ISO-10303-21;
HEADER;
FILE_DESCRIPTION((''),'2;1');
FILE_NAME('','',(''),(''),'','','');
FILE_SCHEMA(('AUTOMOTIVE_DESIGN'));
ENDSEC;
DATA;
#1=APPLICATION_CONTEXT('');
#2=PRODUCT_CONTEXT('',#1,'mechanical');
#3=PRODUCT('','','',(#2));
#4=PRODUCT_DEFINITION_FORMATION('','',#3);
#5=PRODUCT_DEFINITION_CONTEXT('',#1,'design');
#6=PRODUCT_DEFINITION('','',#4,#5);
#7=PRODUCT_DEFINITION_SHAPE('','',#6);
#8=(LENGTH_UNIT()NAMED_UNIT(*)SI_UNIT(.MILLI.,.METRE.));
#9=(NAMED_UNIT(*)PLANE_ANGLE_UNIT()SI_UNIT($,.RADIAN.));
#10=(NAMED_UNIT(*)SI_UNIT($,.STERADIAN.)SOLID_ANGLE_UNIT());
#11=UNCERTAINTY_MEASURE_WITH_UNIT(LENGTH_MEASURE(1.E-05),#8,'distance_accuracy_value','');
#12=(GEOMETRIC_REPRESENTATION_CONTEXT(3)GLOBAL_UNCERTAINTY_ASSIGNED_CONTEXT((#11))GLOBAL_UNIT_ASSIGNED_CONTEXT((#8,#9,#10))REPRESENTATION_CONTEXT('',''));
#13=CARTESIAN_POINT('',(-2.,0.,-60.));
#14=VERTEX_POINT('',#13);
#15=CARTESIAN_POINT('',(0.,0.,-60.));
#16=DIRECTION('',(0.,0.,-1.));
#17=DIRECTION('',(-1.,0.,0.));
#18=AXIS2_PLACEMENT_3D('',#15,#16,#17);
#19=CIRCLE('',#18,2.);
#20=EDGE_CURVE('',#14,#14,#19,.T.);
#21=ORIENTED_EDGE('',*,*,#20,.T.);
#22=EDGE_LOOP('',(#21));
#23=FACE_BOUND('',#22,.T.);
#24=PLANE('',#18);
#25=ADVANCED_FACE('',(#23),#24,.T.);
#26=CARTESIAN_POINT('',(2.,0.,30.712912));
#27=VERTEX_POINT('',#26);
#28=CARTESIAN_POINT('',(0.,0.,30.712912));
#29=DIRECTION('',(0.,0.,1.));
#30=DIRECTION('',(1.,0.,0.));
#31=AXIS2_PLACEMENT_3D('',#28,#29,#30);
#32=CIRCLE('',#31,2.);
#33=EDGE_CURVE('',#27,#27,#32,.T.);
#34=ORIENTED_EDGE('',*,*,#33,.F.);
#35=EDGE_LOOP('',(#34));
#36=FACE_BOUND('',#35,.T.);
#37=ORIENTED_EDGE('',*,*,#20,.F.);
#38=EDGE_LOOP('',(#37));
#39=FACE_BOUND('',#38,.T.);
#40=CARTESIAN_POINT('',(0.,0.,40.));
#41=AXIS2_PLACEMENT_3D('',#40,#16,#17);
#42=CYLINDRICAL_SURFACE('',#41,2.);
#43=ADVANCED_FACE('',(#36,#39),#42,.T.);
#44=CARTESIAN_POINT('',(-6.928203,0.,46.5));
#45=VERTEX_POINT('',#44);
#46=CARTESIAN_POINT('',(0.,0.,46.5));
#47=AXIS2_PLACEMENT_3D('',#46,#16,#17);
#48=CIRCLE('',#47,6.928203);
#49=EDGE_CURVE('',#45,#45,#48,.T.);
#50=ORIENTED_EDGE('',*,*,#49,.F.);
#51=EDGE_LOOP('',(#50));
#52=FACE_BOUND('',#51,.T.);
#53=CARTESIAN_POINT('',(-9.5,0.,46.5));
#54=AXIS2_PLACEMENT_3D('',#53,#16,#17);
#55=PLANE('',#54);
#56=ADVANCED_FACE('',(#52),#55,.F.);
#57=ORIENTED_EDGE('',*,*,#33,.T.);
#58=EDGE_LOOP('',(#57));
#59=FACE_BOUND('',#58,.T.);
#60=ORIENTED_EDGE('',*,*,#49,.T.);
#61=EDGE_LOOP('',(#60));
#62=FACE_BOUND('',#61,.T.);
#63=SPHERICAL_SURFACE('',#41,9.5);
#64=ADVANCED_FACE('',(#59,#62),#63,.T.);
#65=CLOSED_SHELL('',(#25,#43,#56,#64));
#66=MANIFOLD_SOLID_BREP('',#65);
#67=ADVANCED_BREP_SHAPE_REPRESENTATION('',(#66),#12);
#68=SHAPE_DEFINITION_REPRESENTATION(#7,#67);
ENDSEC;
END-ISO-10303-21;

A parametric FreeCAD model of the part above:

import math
import FreeCAD as App
import Part
import Sketcher
from FreeCAD import Vector


def add_polygon(sketch, points):
    """Adds a closed chain of lines whose ends are joined by coincident constraints."""
    first, n = sketch.GeometryCount, len(points)
    for a, b in zip(points, points[1:] + points[:1]):
        sketch.addGeometry(Part.LineSegment(App.Vector(*a, 0), App.Vector(*b, 0)), False)
    for i in range(n):
        sketch.addConstraint(Sketcher.Constraint("Coincident", first + i, 2, first + (i + 1) % n, 1))

doc = App.newDocument("Part")
body = doc.addObject("PartDesign::Body", "Body")

sketch1 = body.newObject("Sketcher::SketchObject", "Sketch")
sketch1.AttachmentSupport = (doc.getObject("XY_Plane"), [""])
sketch1.MapMode = "FlatFace"
sketch1.addGeometry(Part.Circle(Vector(0, 0, 0), Vector(0, 0, 1), 2), False)
sketch1.addConstraint(Sketcher.Constraint("Coincident", 0, 3, -1, 1))
sketch1.addConstraint(Sketcher.Constraint("Diameter", 0, 4.0))
pad1 = body.newObject("PartDesign::Pad", "Pad")
pad1.Profile = sketch1
pad1.Length = 40

sketch2 = body.newObject("Sketcher::SketchObject", "Sketch001")
sketch2.AttachmentSupport = (doc.getObject("XZ_Plane"), [""])
sketch2.MapMode = "FlatFace"
sketch2.addGeometry(Part.LineSegment(Vector(-10, 40, 0), Vector(10, 40, 0)), False)
sketch2.addGeometry(Part.ArcOfCircle(Part.Circle(Vector(0, 40, 0), Vector(0, 0, 1), 10), math.radians(180), math.radians(360)), False)
sketch2.addGeometry(Part.LineSegment(Vector(-10, 40, 0), Vector(10, 40, 0)), True)
sketch2.addConstraint(Sketcher.Constraint("Coincident", 0, 1, 1, 1))
sketch2.addConstraint(Sketcher.Constraint("Coincident", 1, 2, 0, 2))
sketch2.addConstraint(Sketcher.Constraint("Horizontal", 0))
sketch2.addConstraint(Sketcher.Constraint("Horizontal", 2))
sketch2.addConstraint(Sketcher.Constraint("Coincident", 2, 1, 0, 1))
sketch2.addConstraint(Sketcher.Constraint("PointOnObject", 1, 3, -2))
sketch2.addConstraint(Sketcher.Constraint("Horizontal", 1, 3, 0, 1))
sketch2.addConstraint(Sketcher.Constraint("Equal", 0, 2))
sketch2.addConstraint(Sketcher.Constraint("Radius", 1, 9.5))
sketch2.addConstraint(Sketcher.Constraint("DistanceY", -1, 1, 1, 3, 40.0))
revolution = body.newObject("PartDesign::Revolution", "Revolution")
revolution.Profile = sketch2
revolution.ReferenceAxis = (sketch2, ["Axis0"])
revolution.Angle = 360

sketch3 = body.newObject("Sketcher::SketchObject", "Sketch002")
sketch3.AttachmentSupport = (doc.getObject("XY_Plane"), [""])
sketch3.MapMode = "FlatFace"
sketch3.AttachmentOffset = App.Placement(Vector(0, 0, -60), App.Rotation())
sketch3.addGeometry(Part.Circle(Vector(0, 0, 0), Vector(0, 0, 1), 2), False)
sketch3.addConstraint(Sketcher.Constraint("Coincident", 0, 3, -1, 1))
sketch3.addConstraint(Sketcher.Constraint("Diameter", 0, 4.0))
pad2 = body.newObject("PartDesign::Pad", "Pad001")
pad2.Profile = sketch3
pad2.Length = 60

sketch4 = body.newObject("Sketcher::SketchObject", "Sketch003")
sketch4.AttachmentSupport = (doc.getObject("YZ_Plane"), [""])
sketch4.MapMode = "FlatFace"
add_polygon(sketch4, [(12, 46), (12, 54), (-12, 54), (-12, 46)])
sketch4.addConstraint(Sketcher.Constraint("Vertical", 0))
sketch4.addConstraint(Sketcher.Constraint("Horizontal", 1))
sketch4.addConstraint(Sketcher.Constraint("Vertical", 2))
sketch4.addConstraint(Sketcher.Constraint("Horizontal", 3))
sketch4.addConstraint(Sketcher.Constraint("DistanceY", -1, 1, 2, 2, 46.5))
sketch4.addConstraint(Sketcher.Constraint("DistanceX", 1, 2, 1, 1, 24.104781))
sketch4.addConstraint(Sketcher.Constraint("DistanceY", 0, 1, 0, 2, 7.829815))
sketch4.addConstraint(Sketcher.Constraint("DistanceX", -1, 1, 0, 2, 12.012766))
pocket1 = body.newObject("PartDesign::Pocket", "Pocket")
pocket1.Profile = sketch4
pocket1.Type = "ThroughAll"
pocket1.Midplane = True

doc.recompute()
